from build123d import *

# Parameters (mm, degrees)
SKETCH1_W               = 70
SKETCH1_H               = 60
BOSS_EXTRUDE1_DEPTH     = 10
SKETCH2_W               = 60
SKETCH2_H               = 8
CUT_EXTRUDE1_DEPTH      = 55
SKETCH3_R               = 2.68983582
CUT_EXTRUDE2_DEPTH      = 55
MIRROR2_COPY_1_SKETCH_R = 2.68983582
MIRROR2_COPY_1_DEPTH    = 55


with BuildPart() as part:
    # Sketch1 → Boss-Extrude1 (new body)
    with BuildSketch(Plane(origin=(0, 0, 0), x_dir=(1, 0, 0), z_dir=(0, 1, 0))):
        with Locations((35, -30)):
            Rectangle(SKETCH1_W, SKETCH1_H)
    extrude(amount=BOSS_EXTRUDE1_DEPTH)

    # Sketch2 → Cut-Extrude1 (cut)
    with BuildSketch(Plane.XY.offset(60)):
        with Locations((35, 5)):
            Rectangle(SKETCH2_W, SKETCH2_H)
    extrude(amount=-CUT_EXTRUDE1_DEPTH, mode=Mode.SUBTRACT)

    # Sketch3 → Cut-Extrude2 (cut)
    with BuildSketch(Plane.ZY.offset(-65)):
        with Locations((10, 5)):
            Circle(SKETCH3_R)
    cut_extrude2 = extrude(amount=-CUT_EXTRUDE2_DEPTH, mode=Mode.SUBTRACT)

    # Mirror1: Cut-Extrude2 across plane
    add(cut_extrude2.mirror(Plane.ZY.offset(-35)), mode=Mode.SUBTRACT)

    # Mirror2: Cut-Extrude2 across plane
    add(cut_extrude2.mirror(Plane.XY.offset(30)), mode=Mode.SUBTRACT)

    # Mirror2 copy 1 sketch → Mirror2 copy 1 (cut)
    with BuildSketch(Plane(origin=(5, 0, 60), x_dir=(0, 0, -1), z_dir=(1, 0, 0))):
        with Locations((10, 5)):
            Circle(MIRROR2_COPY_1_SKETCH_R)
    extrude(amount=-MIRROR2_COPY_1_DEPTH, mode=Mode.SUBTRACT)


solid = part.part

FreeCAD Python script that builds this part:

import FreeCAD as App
import Part
import Sketcher
Q = App.Units.Quantity

doc = App.newDocument("Part")
body = doc.addObject("PartDesign::Body", "Body")

sketch1 = body.newObject("Sketcher::SketchObject", "Sketch")
sketch1.AttachmentSupport = (doc.getObject("XZ_Plane"), [""])
sketch1.MapMode = "FlatFace"
sketch1.addGeometry(Part.LineSegment(App.Vector(0, 0, 0), App.Vector(0, 60, 0)), False)
sketch1.addGeometry(Part.LineSegment(App.Vector(0, 60, 0), App.Vector(70, 60, 0)), False)
sketch1.addGeometry(Part.LineSegment(App.Vector(70, 60, 0), App.Vector(70, 0, 0)), False)
sketch1.addGeometry(Part.LineSegment(App.Vector(70, 0, 0), App.Vector(0, 0, 0)), False)
sketch1.addConstraint(Sketcher.Constraint("Coincident", 0, 2, 1, 1))
sketch1.addConstraint(Sketcher.Constraint("Coincident", 1, 2, 2, 1))
sketch1.addConstraint(Sketcher.Constraint("Coincident", 2, 2, 3, 1))
sketch1.addConstraint(Sketcher.Constraint("Coincident", 3, 2, 0, 1))
sketch1.addConstraint(Sketcher.Constraint("Vertical", 0))
sketch1.addConstraint(Sketcher.Constraint("Horizontal", 1))
sketch1.addConstraint(Sketcher.Constraint("Vertical", 2))
sketch1.addConstraint(Sketcher.Constraint("Horizontal", 3))
sketch1.addConstraint(Sketcher.Constraint("Coincident", 3, 2, -1, 1))
sketch1.addConstraint(Sketcher.Constraint("DistanceX", 1, 1, 1, 2, Q("70 mm")))
sketch1.addConstraint(Sketcher.Constraint("DistanceY", 0, 1, 0, 2, Q("60 mm")))
pad1 = body.newObject("PartDesign::Pad", "Pad")
pad1.Profile = sketch1
pad1.Length = 10
pad1.Reversed = True

sketch2 = body.newObject("Sketcher::SketchObject", "Sketch001")
sketch2.AttachmentSupport = (doc.getObject("XY_Plane"), [""])
sketch2.MapMode = "FlatFace"
sketch2.AttachmentOffset = App.Placement(App.Vector(0, 0, 60), App.Rotation())
sketch2.addGeometry(Part.LineSegment(App.Vector(5, 9, 0), App.Vector(5, 1, 0)), False)
sketch2.addGeometry(Part.LineSegment(App.Vector(5, 1, 0), App.Vector(65, 1, 0)), False)
sketch2.addGeometry(Part.LineSegment(App.Vector(65, 1, 0), App.Vector(65, 9, 0)), False)
sketch2.addGeometry(Part.LineSegment(App.Vector(65, 9, 0), App.Vector(5, 9, 0)), False)
sketch2.addConstraint(Sketcher.Constraint("Coincident", 0, 2, 1, 1))
sketch2.addConstraint(Sketcher.Constraint("Coincident", 1, 2, 2, 1))
sketch2.addConstraint(Sketcher.Constraint("Coincident", 2, 2, 3, 1))
sketch2.addConstraint(Sketcher.Constraint("Coincident", 3, 2, 0, 1))
sketch2.addConstraint(Sketcher.Constraint("Vertical", 0))
sketch2.addConstraint(Sketcher.Constraint("Horizontal", 1))
sketch2.addConstraint(Sketcher.Constraint("Vertical", 2))
sketch2.addConstraint(Sketcher.Constraint("Horizontal", 3))
sketch2.addConstraint(Sketcher.Constraint("DistanceX", 1, 1, 1, 2, Q("60 mm")))
sketch2.addConstraint(Sketcher.Constraint("DistanceY", 0, 2, 0, 1, Q("8 mm")))
sketch2.addConstraint(Sketcher.Constraint("DistanceX", -1, 1, 0, 2, Q("5 mm")))
sketch2.addConstraint(Sketcher.Constraint("DistanceY", -1, 1, 0, 2, Q("1 mm")))
pocket1 = body.newObject("PartDesign::Pocket", "Pocket")
pocket1.Profile = sketch2
pocket1.Length = 55

sketch3 = body.newObject("Sketcher::SketchObject", "Sketch002")
sketch3.AttachmentSupport = (doc.getObject("YZ_Plane"), [""])
sketch3.MapMode = "FlatFace"
sketch3.AttachmentOffset = App.Placement(App.Vector(0, 0, 65), App.Rotation())
sketch3.addGeometry(Part.Circle(App.Vector(5, 10, 0), App.Vector(0, 0, 1), 2.7), False)
sketch3.addConstraint(Sketcher.Constraint("DistanceX", -1, 1, 0, 3, Q("5 mm")))
sketch3.addConstraint(Sketcher.Constraint("DistanceY", -1, 1, 0, 3, Q("10 mm")))
sketch3.addConstraint(Sketcher.Constraint("Diameter", 0, Q("5.379672 mm")))
pocket2 = body.newObject("PartDesign::Pocket", "Pocket001")
pocket2.Profile = sketch3
pocket2.Length = 55
pocket2.Reversed = True
doc.recompute()

datumplane = body.newObject("PartDesign::Plane", "DatumPlane")
datumplane.AttachmentSupport = (doc.getObject("YZ_Plane"), [""])
datumplane.MapMode = "FlatFace"
datumplane.AttachmentOffset = App.Placement(App.Vector(0, 0, 35), App.Rotation())
mirrored = body.newObject("PartDesign::Mirrored", "Mirrored")
mirrored.Originals = [pocket2]
mirrored.MirrorPlane = (datumplane, [""])
body.Tip = mirrored
doc.recompute()

datumplane2 = body.newObject("PartDesign::Plane", "DatumPlane001")
datumplane2.AttachmentSupport = (doc.getObject("XY_Plane"), [""])
datumplane2.MapMode = "FlatFace"
datumplane2.AttachmentOffset = App.Placement(App.Vector(0, 0, 30), App.Rotation())
mirrored2 = body.newObject("PartDesign::Mirrored", "Mirrored001")
mirrored2.Originals = [pocket2]
mirrored2.MirrorPlane = (datumplane2, [""])
body.Tip = mirrored2

sketch4 = body.newObject("Sketcher::SketchObject", "Sketch003")
sketch4.AttachmentSupport = (doc.getObject("YZ_Plane"), [""])
sketch4.MapMode = "FlatFace"
sketch4.AttachmentOffset = App.Placement(App.Vector(0, 0, 5), App.Rotation())
sketch4.addGeometry(Part.Circle(App.Vector(5, 50, 0), App.Vector(0, 0, 1), 2.7), False)
sketch4.addConstraint(Sketcher.Constraint("DistanceX", -1, 1, 0, 3, Q("5 mm")))
sketch4.addConstraint(Sketcher.Constraint("DistanceY", -1, 1, 0, 3, Q("50 mm")))
sketch4.addConstraint(Sketcher.Constraint("Diameter", 0, Q("5.379672 mm")))
pocket3 = body.newObject("PartDesign::Pocket", "Pocket002")
pocket3.Profile = sketch4
pocket3.Length = 55

doc.recompute()
